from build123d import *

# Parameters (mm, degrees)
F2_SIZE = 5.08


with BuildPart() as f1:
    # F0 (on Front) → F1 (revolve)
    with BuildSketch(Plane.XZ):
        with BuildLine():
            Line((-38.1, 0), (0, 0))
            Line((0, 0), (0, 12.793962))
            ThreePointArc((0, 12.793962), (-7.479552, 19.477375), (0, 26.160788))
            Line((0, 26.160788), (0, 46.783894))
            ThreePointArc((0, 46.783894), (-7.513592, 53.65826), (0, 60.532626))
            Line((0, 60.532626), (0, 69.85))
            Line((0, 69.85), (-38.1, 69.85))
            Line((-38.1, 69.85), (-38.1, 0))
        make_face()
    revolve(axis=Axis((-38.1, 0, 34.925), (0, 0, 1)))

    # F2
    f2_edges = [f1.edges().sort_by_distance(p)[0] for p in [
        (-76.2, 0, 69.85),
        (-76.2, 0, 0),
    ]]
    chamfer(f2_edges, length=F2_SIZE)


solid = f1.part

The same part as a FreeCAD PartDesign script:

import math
import FreeCAD as App
import Part
import Sketcher
Q = App.Units.Quantity


def edges_at(feature, points):
    """Names of the edges that pass closest to the given points."""
    edges = feature.Shape.Edges
    near = lambda p: min(range(len(edges)), key=lambda i: edges[i].distToShape(Part.Vertex(*p))[0])
    return sorted({f"Edge{near(p) + 1}" for p in points})

doc = App.newDocument("Part")
params = doc.addObject("Spreadsheet::Sheet", "Params")
for row, (alias, value) in enumerate([
    ("sketch1_width", "1.5 in"),
    ("sketch1_height", "2.75 in"),
    ("revolution_angle", "360 deg"),
    ("chamfer_size", "0.2 in"),
], start=1):
    params.set(f"A{row}", alias)
    params.set(f"B{row}", "=" + value)
    params.setAlias(f"B{row}", alias)

body = doc.addObject("PartDesign::Body", "Body")

sketch1 = doc.addObject("Sketcher::SketchObject", "Sketch")
body.addObject(sketch1)
sketch1.AttachmentSupport = (doc.XZ_Plane, [""])
sketch1.MapMode = "FlatFace"
sketch1.addGeometry([
    Part.LineSegment(App.Vector(-38, 0, 0), App.Vector(0, 0, 0)),
    Part.LineSegment(App.Vector(0, 0, 0), App.Vector(0, 13, 0)),
    Part.ArcOfCircle(Part.Circle(App.Vector(-1, 19, 0), App.Vector(0, 0, 1), 7), math.radians(84), math.radians(276)),
    Part.LineSegment(App.Vector(0, 26, 0), App.Vector(0, 47, 0)),
    Part.ArcOfCircle(Part.Circle(App.Vector(-1, 54, 0), App.Vector(0, 0, 1), 7), math.radians(85), math.radians(275)),
    Part.LineSegment(App.Vector(0, 61, 0), App.Vector(0, 70, 0)),
    Part.LineSegment(App.Vector(0, 70, 0), App.Vector(-38, 70, 0)),
    Part.LineSegment(App.Vector(-38, 70, 0), App.Vector(-38, 0, 0)),
], False)
sketch1.addGeometry(Part.LineSegment(App.Vector(-38, 0, 0), App.Vector(-38, 70, 0)), True)
sketch1.addConstraint([
    Sketcher.Constraint("Coincident", 0, 2, 1, 1),
    Sketcher.Constraint("Coincident", 1, 2, 2, 2),
    Sketcher.Constraint("Coincident", 2, 1, 3, 1),
    Sketcher.Constraint("Coincident", 3, 2, 4, 2),
    Sketcher.Constraint("Coincident", 4, 1, 5, 1),
    Sketcher.Constraint("Coincident", 5, 2, 6, 1),
    Sketcher.Constraint("Coincident", 6, 2, 7, 1),
    Sketcher.Constraint("Coincident", 7, 2, 0, 1),
    Sketcher.Constraint("Horizontal", 0),
    Sketcher.Constraint("Vertical", 1),
    Sketcher.Constraint("Vertical", 3),
    Sketcher.Constraint("Vertical", 5),
    Sketcher.Constraint("Horizontal", 6),
    Sketcher.Constraint("Vertical", 7),
    Sketcher.Constraint("Vertical", 8),
    Sketcher.Constraint("Coincident", 0, 2, -1, 1),
    Sketcher.Constraint("Coincident", 8, 1, 7, 2),
    Sketcher.Constraint("PointOnObject", 2, 1, -2),
    Sketcher.Constraint("PointOnObject", 4, 1, -2),
    Sketcher.Constraint("Horizontal", 5, 2, 8, 2),
    Sketcher.Constraint("DistanceX", 0, 1, 0, 2, Q("1.5 in")),
    Sketcher.Constraint("DistanceY", 7, 2, 7, 1, Q("2.75 in")),
    Sketcher.Constraint("Radius", 2, Q("6.725784 mm")),
    Sketcher.Constraint("Radius", 4, Q("6.901557 mm")),
    Sketcher.Constraint("DistanceY", 1, 1, 1, 2, Q("12.793962 mm")),
    Sketcher.Constraint("DistanceY", 3, 1, 3, 2, Q("20.623106 mm")),
    Sketcher.Constraint("DistanceY", 5, 1, 5, 2, Q("9.317374 mm")),
    Sketcher.Constraint("DistanceY", -1, 1, 4, 3, Q("53.65826 mm")),
])
sketch1.setExpression("Constraints[20]", "Params.sketch1_width")
sketch1.setExpression("Constraints[21]", "Params.sketch1_height")
revolution = doc.addObject("PartDesign::Revolution", "Revolution")
body.addObject(revolution)
revolution.Profile = sketch1
revolution.ReferenceAxis = (sketch1, ["Axis0"])
revolution.setExpression("Angle", "Params.revolution_angle")
doc.recompute()

chamfer = doc.addObject("PartDesign::Chamfer", "Chamfer")
body.addObject(chamfer)
chamfer.Base = (revolution, edges_at(revolution, [(-76.2, 0, 69.85), (-76.2, 0, 0)]))
chamfer.setExpression("Size", "Params.chamfer_size")

doc.recompute()
